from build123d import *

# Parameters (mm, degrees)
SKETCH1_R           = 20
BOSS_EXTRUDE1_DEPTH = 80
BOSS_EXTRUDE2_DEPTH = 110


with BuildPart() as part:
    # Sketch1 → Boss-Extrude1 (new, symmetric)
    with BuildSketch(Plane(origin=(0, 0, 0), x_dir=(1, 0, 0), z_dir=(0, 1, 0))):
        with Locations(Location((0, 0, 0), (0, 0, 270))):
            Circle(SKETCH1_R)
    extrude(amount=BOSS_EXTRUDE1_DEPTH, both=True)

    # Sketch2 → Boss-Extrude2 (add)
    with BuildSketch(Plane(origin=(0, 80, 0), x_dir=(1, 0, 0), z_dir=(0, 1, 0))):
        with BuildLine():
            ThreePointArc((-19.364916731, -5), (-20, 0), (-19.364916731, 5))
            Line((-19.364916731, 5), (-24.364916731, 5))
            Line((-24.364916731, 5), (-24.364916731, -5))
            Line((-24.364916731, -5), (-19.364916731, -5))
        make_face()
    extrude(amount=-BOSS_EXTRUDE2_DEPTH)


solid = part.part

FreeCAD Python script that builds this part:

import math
import FreeCAD as App
import Part
import Sketcher

doc = App.newDocument("Part")
body = doc.addObject("PartDesign::Body", "Body")

# Sketch on XZ plane
sketch1 = body.newObject("Sketcher::SketchObject", "Sketch")
sketch1.AttachmentSupport = (doc.getObject("XZ_Plane"), [""])
sketch1.MapMode = "FlatFace"
sketch1.addGeometry(Part.Circle(App.Vector(0, 0, 0), App.Vector(0, 0, 1), 20), False)
sketch1.addConstraint([
    Sketcher.Constraint("Coincident", 0, 3, -1, 1),
    Sketcher.Constraint("Diameter", 0, 40.0),
])
pad1 = body.newObject("PartDesign::Pad", "Pad")
pad1.Profile = sketch1
pad1.Length = 160
pad1.Midplane = True

# Sketch on XZ plane
sketch2 = body.newObject("Sketcher::SketchObject", "Sketch001")
sketch2.AttachmentSupport = (doc.getObject("XZ_Plane"), [""])
sketch2.MapMode = "FlatFace"
sketch2.AttachmentOffset = App.Placement(App.Vector(0, 0, -80), App.Rotation())
sketch2.addGeometry([
    Part.ArcOfCircle(Part.Circle(App.Vector(0, 0, 0), App.Vector(0, 0, 1), 20), math.radians(166), math.radians(194)),
    Part.LineSegment(App.Vector(-19, -5, 0), App.Vector(-24, -5, 0)),
    Part.LineSegment(App.Vector(-24, -5, 0), App.Vector(-24, 5, 0)),
    Part.LineSegment(App.Vector(-24, 5, 0), App.Vector(-19, 5, 0)),
], False)
sketch2.addConstraint([
    Sketcher.Constraint("Coincident", 0, 2, 1, 1),
    Sketcher.Constraint("Coincident", 1, 2, 2, 1),
    Sketcher.Constraint("Coincident", 2, 2, 3, 1),
    Sketcher.Constraint("Coincident", 3, 2, 0, 1),
    Sketcher.Constraint("Horizontal", 1),
    Sketcher.Constraint("Vertical", 2),
    Sketcher.Constraint("Horizontal", 3),
    Sketcher.Constraint("Coincident", 0, 3, -1, 1),
    Sketcher.Constraint("Vertical", 0, 2, 3, 2),
    Sketcher.Constraint("Radius", 0, 20.0),
    Sketcher.Constraint("DistanceX", 1, 2, 1, 1, 5.0),
    Sketcher.Constraint("DistanceY", 2, 1, 2, 2, 10.0),
])
pad2 = body.newObject("PartDesign::Pad", "Pad001")
pad2.Profile = sketch2
pad2.Length = 110

doc.recompute()
